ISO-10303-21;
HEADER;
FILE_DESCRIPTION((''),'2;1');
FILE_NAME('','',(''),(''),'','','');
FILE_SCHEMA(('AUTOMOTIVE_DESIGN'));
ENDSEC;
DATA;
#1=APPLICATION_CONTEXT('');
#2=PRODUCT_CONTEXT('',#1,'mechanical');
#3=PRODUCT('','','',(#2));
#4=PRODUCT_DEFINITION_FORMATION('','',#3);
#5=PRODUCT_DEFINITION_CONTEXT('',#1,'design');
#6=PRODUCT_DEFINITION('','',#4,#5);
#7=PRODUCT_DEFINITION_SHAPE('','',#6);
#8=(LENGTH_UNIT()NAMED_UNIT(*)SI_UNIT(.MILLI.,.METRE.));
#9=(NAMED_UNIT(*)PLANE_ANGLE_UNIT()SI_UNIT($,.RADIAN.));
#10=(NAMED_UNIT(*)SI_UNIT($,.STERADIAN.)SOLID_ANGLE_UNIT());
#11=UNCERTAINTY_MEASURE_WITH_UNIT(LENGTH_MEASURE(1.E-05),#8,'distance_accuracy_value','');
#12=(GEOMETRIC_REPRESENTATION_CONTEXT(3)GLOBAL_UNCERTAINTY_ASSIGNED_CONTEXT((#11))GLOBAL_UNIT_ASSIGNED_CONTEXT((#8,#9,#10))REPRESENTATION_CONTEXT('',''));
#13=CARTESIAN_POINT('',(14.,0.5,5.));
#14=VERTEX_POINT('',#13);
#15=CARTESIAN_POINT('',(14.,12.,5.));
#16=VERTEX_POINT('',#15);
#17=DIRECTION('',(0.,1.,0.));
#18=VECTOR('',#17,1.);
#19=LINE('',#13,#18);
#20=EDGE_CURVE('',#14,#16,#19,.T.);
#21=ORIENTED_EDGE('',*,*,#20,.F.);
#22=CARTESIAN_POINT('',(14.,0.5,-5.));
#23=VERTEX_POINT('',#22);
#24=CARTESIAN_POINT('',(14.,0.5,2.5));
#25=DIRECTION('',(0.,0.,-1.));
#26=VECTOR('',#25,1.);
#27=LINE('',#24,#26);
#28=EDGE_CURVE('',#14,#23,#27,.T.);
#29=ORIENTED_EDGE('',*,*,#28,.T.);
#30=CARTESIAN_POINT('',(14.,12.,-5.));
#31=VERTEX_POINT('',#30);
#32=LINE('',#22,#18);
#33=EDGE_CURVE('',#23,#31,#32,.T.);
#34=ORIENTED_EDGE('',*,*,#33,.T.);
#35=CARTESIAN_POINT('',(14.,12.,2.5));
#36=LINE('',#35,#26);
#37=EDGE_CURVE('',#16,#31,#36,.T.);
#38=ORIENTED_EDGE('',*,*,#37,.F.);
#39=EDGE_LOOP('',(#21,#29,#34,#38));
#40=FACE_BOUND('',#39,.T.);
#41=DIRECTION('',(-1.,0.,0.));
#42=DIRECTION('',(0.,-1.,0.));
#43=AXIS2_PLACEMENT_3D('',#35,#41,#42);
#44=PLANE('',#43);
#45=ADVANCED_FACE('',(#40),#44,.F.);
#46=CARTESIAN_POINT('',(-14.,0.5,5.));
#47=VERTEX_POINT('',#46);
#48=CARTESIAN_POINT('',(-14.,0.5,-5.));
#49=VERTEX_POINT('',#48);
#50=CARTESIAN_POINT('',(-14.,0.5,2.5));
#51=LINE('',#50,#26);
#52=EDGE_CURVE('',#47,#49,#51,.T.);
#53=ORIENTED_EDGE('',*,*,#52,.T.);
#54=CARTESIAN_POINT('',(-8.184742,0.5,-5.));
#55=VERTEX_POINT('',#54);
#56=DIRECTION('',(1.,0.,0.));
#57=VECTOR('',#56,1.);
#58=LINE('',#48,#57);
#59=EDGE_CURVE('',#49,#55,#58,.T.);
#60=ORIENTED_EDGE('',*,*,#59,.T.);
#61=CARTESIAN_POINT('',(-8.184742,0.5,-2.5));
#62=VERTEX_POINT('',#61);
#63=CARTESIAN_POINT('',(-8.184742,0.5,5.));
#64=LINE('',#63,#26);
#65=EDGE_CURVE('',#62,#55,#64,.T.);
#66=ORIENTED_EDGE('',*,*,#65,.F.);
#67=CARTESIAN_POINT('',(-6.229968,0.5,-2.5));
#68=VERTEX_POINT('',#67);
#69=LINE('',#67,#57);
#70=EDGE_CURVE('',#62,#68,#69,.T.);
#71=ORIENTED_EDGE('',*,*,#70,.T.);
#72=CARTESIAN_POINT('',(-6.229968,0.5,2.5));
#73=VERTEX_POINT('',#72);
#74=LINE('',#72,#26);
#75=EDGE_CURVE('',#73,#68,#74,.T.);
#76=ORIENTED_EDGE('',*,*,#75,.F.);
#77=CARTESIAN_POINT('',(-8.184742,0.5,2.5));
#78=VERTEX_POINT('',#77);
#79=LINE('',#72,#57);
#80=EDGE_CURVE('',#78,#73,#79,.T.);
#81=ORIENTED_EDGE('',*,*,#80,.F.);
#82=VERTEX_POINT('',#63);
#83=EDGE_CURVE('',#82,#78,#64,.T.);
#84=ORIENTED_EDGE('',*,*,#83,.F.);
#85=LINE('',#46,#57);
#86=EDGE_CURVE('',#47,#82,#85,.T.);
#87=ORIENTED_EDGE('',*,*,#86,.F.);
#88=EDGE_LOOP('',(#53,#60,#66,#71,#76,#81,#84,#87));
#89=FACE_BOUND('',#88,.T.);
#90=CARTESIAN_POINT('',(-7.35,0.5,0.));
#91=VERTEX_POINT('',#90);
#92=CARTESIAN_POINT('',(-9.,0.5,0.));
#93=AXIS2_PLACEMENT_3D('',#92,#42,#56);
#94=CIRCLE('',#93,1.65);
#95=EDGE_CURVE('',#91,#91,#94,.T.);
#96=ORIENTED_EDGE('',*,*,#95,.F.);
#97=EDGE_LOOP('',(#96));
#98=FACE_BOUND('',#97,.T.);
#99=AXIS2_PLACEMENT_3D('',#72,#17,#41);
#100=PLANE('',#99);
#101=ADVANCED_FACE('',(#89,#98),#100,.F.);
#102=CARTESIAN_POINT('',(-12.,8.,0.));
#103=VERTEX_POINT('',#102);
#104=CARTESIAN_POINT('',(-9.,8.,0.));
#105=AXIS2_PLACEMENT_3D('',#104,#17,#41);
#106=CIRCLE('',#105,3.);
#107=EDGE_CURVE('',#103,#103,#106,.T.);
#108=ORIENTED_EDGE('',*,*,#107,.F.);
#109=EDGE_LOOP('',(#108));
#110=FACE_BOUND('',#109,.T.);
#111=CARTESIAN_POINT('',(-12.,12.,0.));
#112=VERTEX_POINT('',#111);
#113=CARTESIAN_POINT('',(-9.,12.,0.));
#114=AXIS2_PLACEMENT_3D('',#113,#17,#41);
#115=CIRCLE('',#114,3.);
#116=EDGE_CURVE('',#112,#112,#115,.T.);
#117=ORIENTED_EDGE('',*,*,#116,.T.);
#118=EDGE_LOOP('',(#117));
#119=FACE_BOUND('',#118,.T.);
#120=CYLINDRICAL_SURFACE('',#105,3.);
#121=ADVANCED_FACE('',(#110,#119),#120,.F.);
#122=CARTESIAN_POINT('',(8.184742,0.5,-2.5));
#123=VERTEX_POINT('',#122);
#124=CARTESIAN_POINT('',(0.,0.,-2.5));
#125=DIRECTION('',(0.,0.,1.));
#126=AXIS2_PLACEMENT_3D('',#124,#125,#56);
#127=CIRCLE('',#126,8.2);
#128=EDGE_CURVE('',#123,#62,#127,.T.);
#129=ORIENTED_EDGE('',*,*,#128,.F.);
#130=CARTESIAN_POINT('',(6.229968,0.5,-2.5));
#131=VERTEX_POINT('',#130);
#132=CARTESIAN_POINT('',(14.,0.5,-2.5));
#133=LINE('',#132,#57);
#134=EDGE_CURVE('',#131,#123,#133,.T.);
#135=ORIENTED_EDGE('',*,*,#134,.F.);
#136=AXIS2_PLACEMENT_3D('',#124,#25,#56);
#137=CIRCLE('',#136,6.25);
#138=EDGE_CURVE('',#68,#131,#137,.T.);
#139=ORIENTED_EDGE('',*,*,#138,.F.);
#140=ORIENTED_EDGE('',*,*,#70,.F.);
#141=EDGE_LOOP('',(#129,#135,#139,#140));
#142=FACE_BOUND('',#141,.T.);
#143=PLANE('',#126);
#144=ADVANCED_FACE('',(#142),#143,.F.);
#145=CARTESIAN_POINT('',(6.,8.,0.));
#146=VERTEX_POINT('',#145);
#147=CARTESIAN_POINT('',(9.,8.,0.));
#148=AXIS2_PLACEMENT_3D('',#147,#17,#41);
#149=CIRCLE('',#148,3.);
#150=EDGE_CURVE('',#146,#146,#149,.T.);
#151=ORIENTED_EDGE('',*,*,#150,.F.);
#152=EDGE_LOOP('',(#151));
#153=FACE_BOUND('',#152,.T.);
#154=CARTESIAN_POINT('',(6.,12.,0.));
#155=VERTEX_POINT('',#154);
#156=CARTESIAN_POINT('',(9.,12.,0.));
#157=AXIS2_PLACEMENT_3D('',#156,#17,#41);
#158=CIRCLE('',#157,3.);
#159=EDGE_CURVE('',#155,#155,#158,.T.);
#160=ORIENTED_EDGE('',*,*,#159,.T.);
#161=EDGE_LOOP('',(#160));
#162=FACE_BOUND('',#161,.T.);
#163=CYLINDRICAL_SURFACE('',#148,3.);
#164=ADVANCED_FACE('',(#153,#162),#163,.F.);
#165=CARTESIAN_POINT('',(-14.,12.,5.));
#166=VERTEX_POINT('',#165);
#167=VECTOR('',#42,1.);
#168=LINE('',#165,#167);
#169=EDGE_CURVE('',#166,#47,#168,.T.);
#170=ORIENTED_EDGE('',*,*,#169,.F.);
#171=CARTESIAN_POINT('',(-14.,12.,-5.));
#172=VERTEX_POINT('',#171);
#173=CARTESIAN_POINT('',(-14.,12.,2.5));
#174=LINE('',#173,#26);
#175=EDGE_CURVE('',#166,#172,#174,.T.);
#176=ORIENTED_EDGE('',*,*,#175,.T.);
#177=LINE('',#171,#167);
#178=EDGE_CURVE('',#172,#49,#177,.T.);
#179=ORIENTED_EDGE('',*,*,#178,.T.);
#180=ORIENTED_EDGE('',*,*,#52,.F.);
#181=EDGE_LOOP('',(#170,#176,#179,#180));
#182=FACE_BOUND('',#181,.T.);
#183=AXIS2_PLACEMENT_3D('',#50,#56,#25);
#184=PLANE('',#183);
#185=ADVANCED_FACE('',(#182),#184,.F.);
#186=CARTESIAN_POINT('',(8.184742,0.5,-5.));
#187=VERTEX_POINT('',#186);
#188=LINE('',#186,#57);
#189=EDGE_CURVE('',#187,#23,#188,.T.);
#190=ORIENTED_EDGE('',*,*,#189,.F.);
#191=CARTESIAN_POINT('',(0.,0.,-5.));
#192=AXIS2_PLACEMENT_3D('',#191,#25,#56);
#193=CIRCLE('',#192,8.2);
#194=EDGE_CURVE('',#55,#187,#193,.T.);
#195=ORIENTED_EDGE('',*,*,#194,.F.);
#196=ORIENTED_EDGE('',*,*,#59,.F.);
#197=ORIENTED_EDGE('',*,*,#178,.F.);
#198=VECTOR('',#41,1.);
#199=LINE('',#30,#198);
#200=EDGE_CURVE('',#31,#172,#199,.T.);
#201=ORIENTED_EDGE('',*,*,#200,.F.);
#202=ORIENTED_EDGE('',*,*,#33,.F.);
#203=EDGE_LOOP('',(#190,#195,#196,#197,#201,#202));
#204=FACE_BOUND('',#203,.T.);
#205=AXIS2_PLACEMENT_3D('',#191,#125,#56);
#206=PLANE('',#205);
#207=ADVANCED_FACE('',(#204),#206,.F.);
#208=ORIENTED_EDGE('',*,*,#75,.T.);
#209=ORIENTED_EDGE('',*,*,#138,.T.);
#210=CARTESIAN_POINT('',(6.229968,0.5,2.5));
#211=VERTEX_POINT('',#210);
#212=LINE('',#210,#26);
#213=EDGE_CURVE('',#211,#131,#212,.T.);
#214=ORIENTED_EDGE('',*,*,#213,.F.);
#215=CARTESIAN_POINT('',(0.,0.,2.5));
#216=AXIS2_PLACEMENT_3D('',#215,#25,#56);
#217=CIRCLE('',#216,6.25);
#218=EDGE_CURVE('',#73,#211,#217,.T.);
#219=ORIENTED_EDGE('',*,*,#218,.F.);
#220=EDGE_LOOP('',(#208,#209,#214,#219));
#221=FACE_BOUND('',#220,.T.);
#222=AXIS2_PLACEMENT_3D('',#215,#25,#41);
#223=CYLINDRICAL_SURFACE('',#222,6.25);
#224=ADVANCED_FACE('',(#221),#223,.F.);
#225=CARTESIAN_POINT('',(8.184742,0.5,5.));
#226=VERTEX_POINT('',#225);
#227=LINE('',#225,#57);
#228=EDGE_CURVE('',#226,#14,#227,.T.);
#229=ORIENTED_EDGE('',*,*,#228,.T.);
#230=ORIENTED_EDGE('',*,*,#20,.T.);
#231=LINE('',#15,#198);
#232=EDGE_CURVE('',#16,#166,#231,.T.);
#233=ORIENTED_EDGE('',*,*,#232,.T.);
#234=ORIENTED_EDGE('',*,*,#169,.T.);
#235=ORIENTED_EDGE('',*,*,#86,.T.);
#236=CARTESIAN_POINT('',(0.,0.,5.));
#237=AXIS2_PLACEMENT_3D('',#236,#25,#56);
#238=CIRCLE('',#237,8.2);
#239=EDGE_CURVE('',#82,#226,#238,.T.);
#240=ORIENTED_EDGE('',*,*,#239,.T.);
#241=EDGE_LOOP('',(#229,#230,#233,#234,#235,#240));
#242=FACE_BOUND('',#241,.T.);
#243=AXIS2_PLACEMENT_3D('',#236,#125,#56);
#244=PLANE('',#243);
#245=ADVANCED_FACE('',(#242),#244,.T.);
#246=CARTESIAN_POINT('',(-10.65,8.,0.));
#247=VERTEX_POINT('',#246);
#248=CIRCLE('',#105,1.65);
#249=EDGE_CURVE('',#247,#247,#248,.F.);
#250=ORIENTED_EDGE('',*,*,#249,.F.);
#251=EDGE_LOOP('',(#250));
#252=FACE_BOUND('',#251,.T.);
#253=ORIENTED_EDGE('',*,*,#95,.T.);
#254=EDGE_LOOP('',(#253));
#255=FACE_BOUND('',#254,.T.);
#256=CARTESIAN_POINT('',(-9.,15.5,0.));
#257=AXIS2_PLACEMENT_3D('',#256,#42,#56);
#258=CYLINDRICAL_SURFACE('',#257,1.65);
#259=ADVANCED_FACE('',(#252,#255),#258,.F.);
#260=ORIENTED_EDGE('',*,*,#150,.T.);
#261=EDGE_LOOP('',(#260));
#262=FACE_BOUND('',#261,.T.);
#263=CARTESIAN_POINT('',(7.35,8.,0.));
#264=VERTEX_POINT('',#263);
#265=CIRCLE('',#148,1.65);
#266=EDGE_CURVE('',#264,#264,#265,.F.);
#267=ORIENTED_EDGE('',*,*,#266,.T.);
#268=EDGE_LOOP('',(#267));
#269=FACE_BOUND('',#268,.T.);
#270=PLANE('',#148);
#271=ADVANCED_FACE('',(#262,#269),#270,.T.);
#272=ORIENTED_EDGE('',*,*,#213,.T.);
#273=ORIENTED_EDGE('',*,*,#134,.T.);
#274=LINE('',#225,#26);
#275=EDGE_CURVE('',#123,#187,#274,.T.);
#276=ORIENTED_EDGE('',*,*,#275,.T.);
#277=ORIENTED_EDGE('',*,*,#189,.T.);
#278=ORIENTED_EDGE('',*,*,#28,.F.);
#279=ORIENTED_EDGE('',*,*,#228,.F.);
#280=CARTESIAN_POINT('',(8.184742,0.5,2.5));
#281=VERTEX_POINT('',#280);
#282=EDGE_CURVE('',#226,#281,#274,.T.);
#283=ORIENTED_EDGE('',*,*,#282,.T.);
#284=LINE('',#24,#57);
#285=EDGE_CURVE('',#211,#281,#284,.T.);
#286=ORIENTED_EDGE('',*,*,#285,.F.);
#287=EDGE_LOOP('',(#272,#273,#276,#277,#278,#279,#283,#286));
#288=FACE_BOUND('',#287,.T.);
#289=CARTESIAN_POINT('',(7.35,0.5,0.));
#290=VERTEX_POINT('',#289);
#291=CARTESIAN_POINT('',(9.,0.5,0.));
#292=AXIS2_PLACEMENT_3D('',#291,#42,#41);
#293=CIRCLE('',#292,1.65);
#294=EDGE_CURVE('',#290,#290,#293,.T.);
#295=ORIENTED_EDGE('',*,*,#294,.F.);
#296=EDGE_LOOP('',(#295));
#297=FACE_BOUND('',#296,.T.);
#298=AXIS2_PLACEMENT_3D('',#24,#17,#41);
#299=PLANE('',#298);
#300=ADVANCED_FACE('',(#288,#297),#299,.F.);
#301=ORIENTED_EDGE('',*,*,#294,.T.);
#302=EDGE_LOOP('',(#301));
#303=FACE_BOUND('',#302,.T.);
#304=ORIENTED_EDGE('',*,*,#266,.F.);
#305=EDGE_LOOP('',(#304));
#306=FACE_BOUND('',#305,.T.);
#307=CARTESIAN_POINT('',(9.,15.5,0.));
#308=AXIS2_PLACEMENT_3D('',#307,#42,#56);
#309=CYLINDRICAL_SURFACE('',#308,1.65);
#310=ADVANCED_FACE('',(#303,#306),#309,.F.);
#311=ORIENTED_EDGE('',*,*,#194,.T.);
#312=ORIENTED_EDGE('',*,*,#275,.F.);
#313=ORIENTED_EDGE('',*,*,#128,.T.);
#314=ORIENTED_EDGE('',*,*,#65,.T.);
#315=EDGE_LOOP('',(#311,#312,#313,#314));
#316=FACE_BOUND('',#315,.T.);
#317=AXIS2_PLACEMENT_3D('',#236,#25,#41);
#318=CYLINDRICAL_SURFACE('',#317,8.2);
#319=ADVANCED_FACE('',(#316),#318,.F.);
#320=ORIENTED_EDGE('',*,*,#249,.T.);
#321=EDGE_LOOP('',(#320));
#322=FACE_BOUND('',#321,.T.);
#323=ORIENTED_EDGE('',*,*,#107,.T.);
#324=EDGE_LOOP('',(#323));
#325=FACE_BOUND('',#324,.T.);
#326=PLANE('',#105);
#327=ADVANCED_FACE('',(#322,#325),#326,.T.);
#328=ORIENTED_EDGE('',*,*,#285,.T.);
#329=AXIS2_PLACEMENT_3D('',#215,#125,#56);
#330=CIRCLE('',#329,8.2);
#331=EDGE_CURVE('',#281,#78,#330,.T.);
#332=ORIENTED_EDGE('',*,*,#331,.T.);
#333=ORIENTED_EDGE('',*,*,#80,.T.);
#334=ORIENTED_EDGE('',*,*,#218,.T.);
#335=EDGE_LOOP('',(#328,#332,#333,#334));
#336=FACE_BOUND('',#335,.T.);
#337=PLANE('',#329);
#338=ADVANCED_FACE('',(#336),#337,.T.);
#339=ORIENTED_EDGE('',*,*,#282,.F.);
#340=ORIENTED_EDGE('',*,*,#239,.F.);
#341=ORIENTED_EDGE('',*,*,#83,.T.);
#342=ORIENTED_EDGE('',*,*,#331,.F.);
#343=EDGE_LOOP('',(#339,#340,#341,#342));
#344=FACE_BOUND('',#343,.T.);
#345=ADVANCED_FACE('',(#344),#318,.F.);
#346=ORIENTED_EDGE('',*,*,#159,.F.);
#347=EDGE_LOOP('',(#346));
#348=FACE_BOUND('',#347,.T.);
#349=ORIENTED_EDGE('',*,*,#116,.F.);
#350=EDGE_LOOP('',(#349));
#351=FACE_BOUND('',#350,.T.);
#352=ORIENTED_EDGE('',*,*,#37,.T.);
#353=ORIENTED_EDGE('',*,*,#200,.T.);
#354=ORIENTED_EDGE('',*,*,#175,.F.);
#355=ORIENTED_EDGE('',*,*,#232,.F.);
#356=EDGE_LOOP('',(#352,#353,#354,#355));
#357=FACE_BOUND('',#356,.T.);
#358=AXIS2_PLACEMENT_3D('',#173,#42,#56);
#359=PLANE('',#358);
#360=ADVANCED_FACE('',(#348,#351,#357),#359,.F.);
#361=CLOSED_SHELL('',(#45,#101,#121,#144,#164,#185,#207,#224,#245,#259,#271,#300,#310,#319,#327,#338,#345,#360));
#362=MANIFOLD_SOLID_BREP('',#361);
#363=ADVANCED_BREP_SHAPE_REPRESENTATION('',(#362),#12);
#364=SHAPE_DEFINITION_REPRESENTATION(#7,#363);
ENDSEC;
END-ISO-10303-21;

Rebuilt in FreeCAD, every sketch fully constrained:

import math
import FreeCAD as App
import Part
import Sketcher
from FreeCAD import Vector
Q = App.Units.Quantity

doc = App.newDocument("Part")
body = doc.addObject("PartDesign::Body", "Body")

sketch1 = body.newObject("Sketcher::SketchObject", "Sketch")
sketch1.AttachmentSupport = (doc.getObject("XY_Plane"), [""])
sketch1.MapMode = "FlatFace"
sketch1.addGeometry([
    Part.LineSegment(Vector(-14, 0, 0), Vector(-6, 0, 0)),
    Part.ArcOfCircle(Part.Circle(Vector(0, 0, 0), Vector(0, 0, 1), 6), math.radians(5), math.radians(175)),
    Part.LineSegment(Vector(6, 0, 0), Vector(14, 0, 0)),
    Part.LineSegment(Vector(14, 0, 0), Vector(14, 12, 0)),
    Part.LineSegment(Vector(14, 12, 0), Vector(-14, 12, 0)),
    Part.LineSegment(Vector(-14, 12, 0), Vector(-14, 0, 0)),
], False)
sketch1.addConstraint([
    Sketcher.Constraint("Coincident", 0, 2, 1, 2),
    Sketcher.Constraint("Coincident", 1, 1, 2, 1),
    Sketcher.Constraint("Coincident", 2, 2, 3, 1),
    Sketcher.Constraint("Coincident", 3, 2, 4, 1),
    Sketcher.Constraint("Coincident", 4, 2, 5, 1),
    Sketcher.Constraint("Coincident", 5, 2, 0, 1),
    Sketcher.Constraint("Horizontal", 0),
    Sketcher.Constraint("Horizontal", 2),
    Sketcher.Constraint("Vertical", 3),
    Sketcher.Constraint("Horizontal", 4),
    Sketcher.Constraint("Vertical", 5),
    Sketcher.Constraint("Coincident", 1, 3, -1, 1),
    Sketcher.Constraint("Symmetric", 2, 2, 5, 2, -2),
    Sketcher.Constraint("DistanceX", 4, 2, 4, 1, Q("28 mm")),
    Sketcher.Constraint("Radius", 1, Q("6.25 mm")),
    Sketcher.Constraint("DistanceY", 3, 1, 3, 2, Q("11.5 mm")),
    Sketcher.Constraint("DistanceY", -1, 1, 3, 2, Q("12 mm")),
])
pad1 = body.newObject("PartDesign::Pad", "Pad")
pad1.Profile = sketch1
pad1.Length = 5
pad1.Midplane = True

sketch2 = body.newObject("Sketcher::SketchObject", "Sketch001")
sketch2.AttachmentSupport = (doc.getObject("XY_Plane"), [""])
sketch2.MapMode = "FlatFace"
sketch2.addGeometry([
    Part.LineSegment(Vector(-14, 12, 0), Vector(-14, 0, 0)),
    Part.LineSegment(Vector(-14, 0, 0), Vector(-8, 0, 0)),
    Part.ArcOfCircle(Part.Circle(Vector(0, 0, 0), Vector(0, 0, 1), 8), math.radians(3), math.radians(177)),
    Part.LineSegment(Vector(8, 0, 0), Vector(14, 0, 0)),
    Part.LineSegment(Vector(14, 0, 0), Vector(14, 12, 0)),
    Part.LineSegment(Vector(14, 12, 0), Vector(-14, 12, 0)),
], False)
sketch2.addConstraint([
    Sketcher.Constraint("Coincident", 0, 2, 1, 1),
    Sketcher.Constraint("Coincident", 1, 2, 2, 2),
    Sketcher.Constraint("Coincident", 2, 1, 3, 1),
    Sketcher.Constraint("Coincident", 3, 2, 4, 1),
    Sketcher.Constraint("Coincident", 4, 2, 5, 1),
    Sketcher.Constraint("Coincident", 5, 2, 0, 1),
    Sketcher.Constraint("Vertical", 0),
    Sketcher.Constraint("Horizontal", 1),
    Sketcher.Constraint("Horizontal", 3),
    Sketcher.Constraint("Vertical", 4),
    Sketcher.Constraint("Horizontal", 5),
    Sketcher.Constraint("Coincident", 2, 3, -1, 1),
    Sketcher.Constraint("Symmetric", 0, 2, 3, 2, -2),
    Sketcher.Constraint("Radius", 2, Q("8.2 mm")),
    Sketcher.Constraint("DistanceX", 5, 2, 5, 1, Q("28 mm")),
    Sketcher.Constraint("DistanceY", 0, 2, 0, 1, Q("11.5 mm")),
    Sketcher.Constraint("DistanceY", -1, 1, 4, 2, Q("12 mm")),
])
pad2 = body.newObject("PartDesign::Pad", "Pad001")
pad2.Profile = sketch2
pad2.Length = 10
pad2.Midplane = True

sketch3 = body.newObject("Sketcher::SketchObject", "Sketch002")
sketch3.AttachmentSupport = (doc.getObject("XZ_Plane"), [""])
sketch3.MapMode = "FlatFace"
sketch3.AttachmentOffset = App.Placement(Vector(0, 0, -0.5), App.Rotation())
sketch3.addGeometry([
    Part.Circle(Vector(-9, 0, 0), Vector(0, 0, 1), 1.6),
    Part.Circle(Vector(9, 0, 0), Vector(0, 0, 1), 1.6),
], False)
sketch3.addConstraint([
    Sketcher.Constraint("Equal", 0, 1),
    Sketcher.Constraint("Symmetric", 0, 3, 1, 3, -1, 1),
    Sketcher.Constraint("PointOnObject", 0, 3, -1),
    Sketcher.Constraint("Diameter", 0, Q("3.3 mm")),
    Sketcher.Constraint("DistanceX", 0, 3, -1, 1, Q("9 mm")),
])
pocket1 = body.newObject("PartDesign::Pocket", "Pocket")
pocket1.Profile = sketch3
pocket1.Length = 15

sketch4 = body.newObject("Sketcher::SketchObject", "Sketch003")
sketch4.AttachmentSupport = (doc.getObject("XZ_Plane"), [""])
sketch4.MapMode = "FlatFace"
sketch4.AttachmentOffset = App.Placement(Vector(0, 0, -12), App.Rotation())
sketch4.addGeometry([
    Part.Circle(Vector(-9, 0, 0), Vector(0, 0, 1), 3),
    Part.Circle(Vector(9, 0, 0), Vector(0, 0, 1), 3),
], False)
sketch4.addConstraint([
    Sketcher.Constraint("Equal", 0, 1),
    Sketcher.Constraint("Symmetric", 0, 3, 1, 3, -1, 1),
    Sketcher.Constraint("PointOnObject", 0, 3, -1),
    Sketcher.Constraint("Diameter", 0, Q("6 mm")),
    Sketcher.Constraint("DistanceX", 0, 3, -1, 1, Q("9 mm")),
])
pocket2 = body.newObject("PartDesign::Pocket", "Pocket001")
pocket2.Profile = sketch4
pocket2.Length = 4
pocket2.Reversed = True

doc.recompute()
